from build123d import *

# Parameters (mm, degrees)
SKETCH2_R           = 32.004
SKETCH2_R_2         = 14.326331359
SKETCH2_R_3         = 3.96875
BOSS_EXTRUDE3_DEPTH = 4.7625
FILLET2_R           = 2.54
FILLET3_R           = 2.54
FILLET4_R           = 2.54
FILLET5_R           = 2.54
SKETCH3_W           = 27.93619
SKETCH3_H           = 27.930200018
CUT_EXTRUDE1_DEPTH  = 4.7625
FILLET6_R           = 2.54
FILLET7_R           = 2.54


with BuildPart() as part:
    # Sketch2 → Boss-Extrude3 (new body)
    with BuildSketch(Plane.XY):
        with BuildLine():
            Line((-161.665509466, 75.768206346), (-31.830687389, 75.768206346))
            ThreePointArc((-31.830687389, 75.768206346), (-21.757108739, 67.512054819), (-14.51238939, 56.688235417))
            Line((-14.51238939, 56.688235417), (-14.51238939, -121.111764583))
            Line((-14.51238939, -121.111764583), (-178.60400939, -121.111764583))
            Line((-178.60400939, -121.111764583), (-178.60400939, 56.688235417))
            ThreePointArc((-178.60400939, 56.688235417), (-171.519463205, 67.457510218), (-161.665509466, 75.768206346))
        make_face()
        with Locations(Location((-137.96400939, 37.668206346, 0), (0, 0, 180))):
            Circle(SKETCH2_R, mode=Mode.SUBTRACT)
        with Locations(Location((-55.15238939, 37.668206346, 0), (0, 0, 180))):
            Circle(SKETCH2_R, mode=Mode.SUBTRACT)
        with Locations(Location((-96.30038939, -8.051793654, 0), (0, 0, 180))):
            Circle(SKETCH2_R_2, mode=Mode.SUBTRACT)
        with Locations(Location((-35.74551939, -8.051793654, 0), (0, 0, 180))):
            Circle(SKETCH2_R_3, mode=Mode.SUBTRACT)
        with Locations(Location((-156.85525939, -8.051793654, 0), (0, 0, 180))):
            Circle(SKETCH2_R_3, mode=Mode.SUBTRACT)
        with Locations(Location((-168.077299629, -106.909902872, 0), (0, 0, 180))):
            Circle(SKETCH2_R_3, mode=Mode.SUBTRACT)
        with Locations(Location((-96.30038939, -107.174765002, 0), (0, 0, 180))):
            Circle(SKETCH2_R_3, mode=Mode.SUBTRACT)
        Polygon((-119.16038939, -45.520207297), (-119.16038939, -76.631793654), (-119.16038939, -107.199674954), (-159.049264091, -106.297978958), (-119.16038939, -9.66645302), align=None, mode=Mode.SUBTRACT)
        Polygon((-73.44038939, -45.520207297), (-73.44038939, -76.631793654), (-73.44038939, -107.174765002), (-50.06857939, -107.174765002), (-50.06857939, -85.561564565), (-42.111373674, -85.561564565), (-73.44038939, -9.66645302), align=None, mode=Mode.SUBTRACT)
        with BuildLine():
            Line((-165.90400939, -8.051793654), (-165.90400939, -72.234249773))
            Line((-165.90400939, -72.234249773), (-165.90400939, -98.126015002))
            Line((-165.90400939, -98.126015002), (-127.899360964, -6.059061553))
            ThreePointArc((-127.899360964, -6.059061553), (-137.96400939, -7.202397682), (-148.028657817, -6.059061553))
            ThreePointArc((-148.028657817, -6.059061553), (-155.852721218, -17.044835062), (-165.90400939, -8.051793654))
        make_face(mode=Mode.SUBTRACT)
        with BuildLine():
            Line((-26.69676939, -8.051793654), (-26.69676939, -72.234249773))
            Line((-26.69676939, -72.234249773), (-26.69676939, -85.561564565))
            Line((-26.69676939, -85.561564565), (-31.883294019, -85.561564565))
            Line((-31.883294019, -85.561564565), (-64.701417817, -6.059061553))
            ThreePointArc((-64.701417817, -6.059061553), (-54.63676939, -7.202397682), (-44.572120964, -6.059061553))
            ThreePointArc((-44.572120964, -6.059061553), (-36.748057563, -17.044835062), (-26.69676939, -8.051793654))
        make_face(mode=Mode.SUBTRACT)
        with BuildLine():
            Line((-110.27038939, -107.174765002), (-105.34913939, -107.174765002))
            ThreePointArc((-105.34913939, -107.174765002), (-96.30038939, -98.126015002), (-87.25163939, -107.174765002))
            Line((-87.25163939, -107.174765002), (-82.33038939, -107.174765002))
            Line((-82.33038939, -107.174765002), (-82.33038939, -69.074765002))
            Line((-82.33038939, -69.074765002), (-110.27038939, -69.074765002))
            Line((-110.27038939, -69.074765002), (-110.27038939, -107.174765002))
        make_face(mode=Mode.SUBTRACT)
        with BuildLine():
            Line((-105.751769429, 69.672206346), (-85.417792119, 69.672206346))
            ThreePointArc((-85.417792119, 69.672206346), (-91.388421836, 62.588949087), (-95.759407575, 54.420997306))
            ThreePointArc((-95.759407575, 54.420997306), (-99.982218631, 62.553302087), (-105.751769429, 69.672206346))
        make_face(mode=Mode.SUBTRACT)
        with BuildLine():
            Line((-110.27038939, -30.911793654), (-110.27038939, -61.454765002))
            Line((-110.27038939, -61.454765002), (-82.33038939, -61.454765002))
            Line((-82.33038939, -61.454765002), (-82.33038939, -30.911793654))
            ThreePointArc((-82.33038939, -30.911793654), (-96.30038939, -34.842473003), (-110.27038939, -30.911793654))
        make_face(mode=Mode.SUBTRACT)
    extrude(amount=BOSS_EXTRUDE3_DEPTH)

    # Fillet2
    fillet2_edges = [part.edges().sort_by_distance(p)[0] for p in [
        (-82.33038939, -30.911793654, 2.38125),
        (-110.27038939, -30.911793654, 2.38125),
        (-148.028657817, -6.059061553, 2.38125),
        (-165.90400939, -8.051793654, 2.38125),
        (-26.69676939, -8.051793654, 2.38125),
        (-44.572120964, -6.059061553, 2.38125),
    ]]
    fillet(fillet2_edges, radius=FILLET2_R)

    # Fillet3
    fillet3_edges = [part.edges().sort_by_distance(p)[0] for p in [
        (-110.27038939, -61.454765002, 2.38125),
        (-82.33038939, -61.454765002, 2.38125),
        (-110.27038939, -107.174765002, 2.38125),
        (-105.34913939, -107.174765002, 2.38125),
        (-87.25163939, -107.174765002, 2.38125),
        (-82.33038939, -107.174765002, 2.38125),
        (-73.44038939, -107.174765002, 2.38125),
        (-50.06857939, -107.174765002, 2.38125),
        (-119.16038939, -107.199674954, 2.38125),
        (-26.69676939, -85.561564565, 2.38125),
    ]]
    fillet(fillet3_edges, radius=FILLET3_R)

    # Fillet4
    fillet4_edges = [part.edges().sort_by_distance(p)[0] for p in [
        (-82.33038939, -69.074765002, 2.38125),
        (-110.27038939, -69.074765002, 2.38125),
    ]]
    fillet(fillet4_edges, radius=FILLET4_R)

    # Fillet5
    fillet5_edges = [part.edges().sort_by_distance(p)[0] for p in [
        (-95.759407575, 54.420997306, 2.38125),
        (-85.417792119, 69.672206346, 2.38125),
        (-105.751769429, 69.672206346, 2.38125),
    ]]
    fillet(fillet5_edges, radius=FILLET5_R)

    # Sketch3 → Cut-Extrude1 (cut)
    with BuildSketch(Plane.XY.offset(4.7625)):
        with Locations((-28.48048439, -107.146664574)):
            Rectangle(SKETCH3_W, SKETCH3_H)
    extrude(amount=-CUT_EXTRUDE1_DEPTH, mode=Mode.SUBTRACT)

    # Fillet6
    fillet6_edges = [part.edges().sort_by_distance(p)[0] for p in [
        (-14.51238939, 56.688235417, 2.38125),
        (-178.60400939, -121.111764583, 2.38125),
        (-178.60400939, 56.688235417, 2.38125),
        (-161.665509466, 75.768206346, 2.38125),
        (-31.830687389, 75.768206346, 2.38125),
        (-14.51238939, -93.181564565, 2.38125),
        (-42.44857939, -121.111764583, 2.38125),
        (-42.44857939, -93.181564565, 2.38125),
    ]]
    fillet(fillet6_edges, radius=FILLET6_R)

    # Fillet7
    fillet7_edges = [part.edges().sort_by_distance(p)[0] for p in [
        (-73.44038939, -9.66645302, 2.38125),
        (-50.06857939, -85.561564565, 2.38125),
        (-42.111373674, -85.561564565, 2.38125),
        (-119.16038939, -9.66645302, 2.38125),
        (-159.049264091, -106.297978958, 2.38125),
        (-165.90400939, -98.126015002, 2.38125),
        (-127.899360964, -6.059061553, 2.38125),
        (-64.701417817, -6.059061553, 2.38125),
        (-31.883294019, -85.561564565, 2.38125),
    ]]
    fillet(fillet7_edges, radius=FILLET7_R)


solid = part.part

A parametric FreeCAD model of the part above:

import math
import FreeCAD as App
import Part
import Sketcher
Q = App.Units.Quantity


def edges_at(feature, points):
    """Names of the edges that pass closest to the given points."""
    edges = feature.Shape.Edges
    near = lambda p: min(range(len(edges)), key=lambda i: edges[i].distToShape(Part.Vertex(*p))[0])
    return sorted({f"Edge{near(p) + 1}" for p in points})

doc = App.newDocument("Part")
params = doc.addObject("Spreadsheet::Sheet", "Params")
for row, (alias, value) in enumerate([
    ("sketch1_diameter", "2.52 in"),
    ("sketch1_height", "7 in"),
    ("sketch1_diameter2", "0.3125 in"),
    ("sketch1_width", "1.1 in"),
    ("sketch1_height2", "1.5 in"),
    ("pad1_length", "0.1875 in"),
    ("fillet_radius", "0.1 in"),
    ("fillet2_radius", "0.1 in"),
    ("fillet3_radius", "0.1 in"),
    ("fillet4_radius", "0.1 in"),
    ("pocket1_length", "0.1875 in"),
    ("fillet5_radius", "0.1 in"),
    ("fillet6_radius", "0.1 in"),
], start=1):
    params.set(f"A{row}", alias)
    params.set(f"B{row}", "=" + value)
    params.setAlias(f"B{row}", alias)

body = doc.addObject("PartDesign::Body", "Body")

# Sketch on XY plane
sketch1 = body.newObject("Sketcher::SketchObject", "Sketch")
sketch1.AttachmentSupport = (doc.getObject("XY_Plane"), [""])
sketch1.MapMode = "FlatFace"
sketch1.addGeometry([
    Part.LineSegment(App.Vector(-31.8, 75.8, 0), App.Vector(-161.7, 75.8, 0)),  # 0
    Part.ArcOfCircle(Part.Circle(App.Vector(-138, 37.7, 0), App.Vector(0, 0, 1), 44.9), math.radians(122), math.radians(155)),  # 1
    Part.LineSegment(App.Vector(-178.6, 56.7, 0), App.Vector(-178.6, -121.1, 0)),  # 2
    Part.LineSegment(App.Vector(-178.6, -121.1, 0), App.Vector(-14.5, -121.1, 0)),  # 3
    Part.LineSegment(App.Vector(-14.5, -121.1, 0), App.Vector(-14.5, 56.7, 0)),  # 4
    Part.ArcOfCircle(Part.Circle(App.Vector(-54.6, 37.7, 0), App.Vector(0, 0, 1), 44.4), math.radians(25), math.radians(59)),  # 5
    Part.Circle(App.Vector(-96.3, -107.2, 0), App.Vector(0, 0, 1), 4),  # 6
    Part.LineSegment(App.Vector(-110.3, -107.2, 0), App.Vector(-110.3, -69.1, 0)),  # 7
    Part.LineSegment(App.Vector(-110.3, -69.1, 0), App.Vector(-82.3, -69.1, 0)),  # 8
    Part.LineSegment(App.Vector(-82.3, -69.1, 0), App.Vector(-82.3, -107.2, 0)),  # 9
    Part.LineSegment(App.Vector(-82.3, -107.2, 0), App.Vector(-87.3, -107.2, 0)),  # 10
    Part.ArcOfCircle(Part.Circle(App.Vector(-96.3, -107.2, 0), App.Vector(0, 0, 1), 9), math.radians(0), math.radians(180)),  # 11
    Part.LineSegment(App.Vector(-105.3, -107.2, 0), App.Vector(-110.3, -107.2, 0)),  # 12
    Part.LineSegment(App.Vector(-73.4, -9.7, 0), App.Vector(-42.1, -85.6, 0)),  # 13
    Part.LineSegment(App.Vector(-42.1, -85.6, 0), App.Vector(-50.1, -85.6, 0)),  # 14
    Part.LineSegment(App.Vector(-50.1, -85.6, 0), App.Vector(-50.1, -107.2, 0)),  # 15
    Part.LineSegment(App.Vector(-50.1, -107.2, 0), App.Vector(-73.4, -107.2, 0)),  # 16
    Part.LineSegment(App.Vector(-73.4, -107.2, 0), App.Vector(-73.4, -9.7, 0)),  # 17
    Part.LineSegment(App.Vector(-26.7, -8.1, 0), App.Vector(-26.7, -85.6, 0)),  # 18
    Part.LineSegment(App.Vector(-26.7, -85.6, 0), App.Vector(-31.9, -85.6, 0)),  # 19
    Part.LineSegment(App.Vector(-31.9, -85.6, 0), App.Vector(-64.7, -6.1, 0)),  # 20
    Part.ArcOfCircle(Part.Circle(App.Vector(-54.6, 37.7, 0), App.Vector(0, 0, 1), 44.9), math.radians(-103), math.radians(-77)),  # 21
    Part.ArcOfCircle(Part.Circle(App.Vector(-35.7, -8.1, 0), App.Vector(0, 0, 1), 9), math.radians(167), math.radians(360)),  # 22
    Part.ArcOfCircle(Part.Circle(App.Vector(-96.3, -8.1, 0), App.Vector(0, 0, 1), 26.8), math.radians(-121), math.radians(-59)),  # 23
    Part.LineSegment(App.Vector(-82.3, -30.9, 0), App.Vector(-82.3, -61.5, 0)),  # 24
    Part.LineSegment(App.Vector(-82.3, -61.5, 0), App.Vector(-110.3, -61.5, 0)),  # 25
    Part.LineSegment(App.Vector(-110.3, -61.5, 0), App.Vector(-110.3, -30.9, 0)),  # 26
    Part.Circle(App.Vector(-168.1, -106.9, 0), App.Vector(0, 0, 1), 4),  # 27
    Part.LineSegment(App.Vector(-119.2, -107.2, 0), App.Vector(-159, -106.3, 0)),  # 28
    Part.LineSegment(App.Vector(-159, -106.3, 0), App.Vector(-119.2, -9.7, 0)),  # 29
    Part.LineSegment(App.Vector(-119.2, -9.7, 0), App.Vector(-119.2, -107.2, 0)),  # 30
    Part.ArcOfCircle(Part.Circle(App.Vector(-156.9, -8.1, 0), App.Vector(0, 0, 1), 9), math.radians(180), math.radians(373)),  # 31
    Part.ArcOfCircle(Part.Circle(App.Vector(-138, 37.7, 0), App.Vector(0, 0, 1), 44.9), math.radians(-103), math.radians(-77)),  # 32
    Part.LineSegment(App.Vector(-127.9, -6.1, 0), App.Vector(-165.9, -98.1, 0)),  # 33
    Part.LineSegment(App.Vector(-165.9, -98.1, 0), App.Vector(-165.9, -8.1, 0)),  # 34
    Part.Circle(App.Vector(-35.7, -8.1, 0), App.Vector(0, 0, 1), 4),  # 35
    Part.Circle(App.Vector(-96.3, -8.1, 0), App.Vector(0, 0, 1), 14.3),  # 36
    Part.Circle(App.Vector(-55.2, 37.7, 0), App.Vector(0, 0, 1), 32),  # 37
    Part.LineSegment(App.Vector(-105.8, 69.7, 0), App.Vector(-85.4, 69.7, 0)),  # 38
    Part.ArcOfCircle(Part.Circle(App.Vector(-54.6, 37.7, 0), App.Vector(0, 0, 1), 44.4), math.radians(134), math.radians(158)),  # 39
    Part.ArcOfCircle(Part.Circle(App.Vector(-138, 37.7, 0), App.Vector(0, 0, 1), 45.4), math.radians(22), math.radians(45)),  # 40
    Part.Circle(App.Vector(-156.9, -8.1, 0), App.Vector(0, 0, 1), 4),  # 41
    Part.Circle(App.Vector(-138, 37.7, 0), App.Vector(0, 0, 1), 32),  # 42
], False)
sketch1.addConstraint([
    Sketcher.Constraint("Coincident", 0, 2, 1, 1),
    Sketcher.Constraint("Coincident", 1, 2, 2, 1),
    Sketcher.Constraint("Coincident", 2, 2, 3, 1),
    Sketcher.Constraint("Coincident", 3, 2, 4, 1),
    Sketcher.Constraint("Coincident", 4, 2, 5, 1),
    Sketcher.Constraint("Coincident", 5, 2, 0, 1),
    Sketcher.Constraint("Coincident", 7, 2, 8, 1),
    Sketcher.Constraint("Coincident", 8, 2, 9, 1),
    Sketcher.Constraint("Coincident", 9, 2, 10, 1),
    Sketcher.Constraint("Coincident", 10, 2, 11, 1),
    Sketcher.Constraint("Coincident", 11, 2, 12, 1),
    Sketcher.Constraint("Coincident", 12, 2, 7, 1),
    Sketcher.Constraint("Coincident", 13, 2, 14, 1),
    Sketcher.Constraint("Coincident", 14, 2, 15, 1),
    Sketcher.Constraint("Coincident", 15, 2, 16, 1),
    Sketcher.Constraint("Coincident", 16, 2, 17, 1),
    Sketcher.Constraint("Coincident", 17, 2, 13, 1),
    Sketcher.Constraint("Coincident", 18, 2, 19, 1),
    Sketcher.Constraint("Coincident", 19, 2, 20, 1),
    Sketcher.Constraint("Coincident", 20, 2, 21, 1),
    Sketcher.Constraint("Coincident", 21, 2, 22, 1),
    Sketcher.Constraint("Tangent", 22, 2, 18, 1),
    Sketcher.Constraint("Coincident", 23, 2, 24, 1),
    Sketcher.Constraint("Coincident", 24, 2, 25, 1),
    Sketcher.Constraint("Coincident", 25, 2, 26, 1),
    Sketcher.Constraint("Coincident", 26, 2, 23, 1),
    Sketcher.Constraint("Coincident", 28, 2, 29, 1),
    Sketcher.Constraint("Coincident", 29, 2, 30, 1),
    Sketcher.Constraint("Coincident", 30, 2, 28, 1),
    Sketcher.Constraint("Coincident", 31, 2, 32, 1),
    Sketcher.Constraint("Coincident", 32, 2, 33, 1),
    Sketcher.Constraint("Coincident", 33, 2, 34, 1),
    Sketcher.Constraint("Tangent", 34, 2, 31, 1),
    Sketcher.Constraint("Coincident", 38, 2, 39, 1),
    Sketcher.Constraint("Coincident", 39, 2, 40, 1),
    Sketcher.Constraint("Coincident", 40, 2, 38, 1),
    Sketcher.Constraint("Horizontal", 0),
    Sketcher.Constraint("Vertical", 2),
    Sketcher.Constraint("Horizontal", 3),
    Sketcher.Constraint("Vertical", 4),
    Sketcher.Constraint("Vertical", 7),
    Sketcher.Constraint("Horizontal", 8),
    Sketcher.Constraint("Vertical", 9),
    Sketcher.Constraint("Horizontal", 10),
    Sketcher.Constraint("Horizontal", 12),
    Sketcher.Constraint("Horizontal", 14),
    Sketcher.Constraint("Vertical", 15),
    Sketcher.Constraint("Horizontal", 16),
    Sketcher.Constraint("Vertical", 17),
    Sketcher.Constraint("Vertical", 18),
    Sketcher.Constraint("Horizontal", 19),
    Sketcher.Constraint("Vertical", 24),
    Sketcher.Constraint("Horizontal", 25),
    Sketcher.Constraint("Vertical", 26),
    Sketcher.Constraint("Vertical", 30),
    Sketcher.Constraint("Vertical", 34),
    Sketcher.Constraint("Horizontal", 38),
    Sketcher.Constraint("Coincident", 11, 3, 6, 3),
    Sketcher.Constraint("Coincident", 21, 3, 5, 3),
    Sketcher.Constraint("Coincident", 32, 3, 1, 3),
    Sketcher.Constraint("Coincident", 35, 3, 22, 3),
    Sketcher.Constraint("Coincident", 36, 3, 23, 3),
    Sketcher.Constraint("Coincident", 39, 3, 5, 3),
    Sketcher.Constraint("Coincident", 40, 3, 1, 3),
    Sketcher.Constraint("Coincident", 41, 3, 31, 3),
    Sketcher.Constraint("Coincident", 42, 3, 1, 3),
    Sketcher.Constraint("Equal", 1, 21),
    Sketcher.Constraint("Equal", 11, 22),
    Sketcher.Constraint("Equal", 6, 27),
    Sketcher.Constraint("Equal", 22, 31),
    Sketcher.Constraint("Equal", 21, 32),
    Sketcher.Constraint("Equal", 27, 35),
    Sketcher.Constraint("Equal", 5, 39),
    Sketcher.Constraint("Equal", 35, 41),
    Sketcher.Constraint("Equal", 37, 42),
    Sketcher.Constraint("Parallel", 13, 20),
    Sketcher.Constraint("Parallel", 29, 33),
    Sketcher.Constraint("Horizontal", 1, 3, 5, 3),
    Sketcher.Constraint("Horizontal", 22, 3, 23, 3),
    Sketcher.Constraint("Horizontal", 23, 3, 31, 3),
    Sketcher.Constraint("Horizontal", 32, 3, 37, 3),
    Sketcher.Constraint("Horizontal", 1, 2, 4, 2),
    Sketcher.Constraint("Horizontal", 11, 3, 9, 2),
    Sketcher.Constraint("Horizontal", 10, 2, 11, 2),
    Sketcher.Constraint("Horizontal", 12, 2, 15, 2),
    Sketcher.Constraint("Horizontal", 14, 2, 18, 2),
    Sketcher.Constraint("Horizontal", 20, 2, 21, 2),
    Sketcher.Constraint("Horizontal", 23, 2, 26, 2),
    Sketcher.Constraint("Horizontal", 17, 2, 29, 2),
    Sketcher.Constraint("Horizontal", 21, 2, 31, 2),
    Sketcher.Constraint("Horizontal", 31, 2, 32, 2),
    Sketcher.Constraint("Vertical", 11, 3, 23, 3),
    Sketcher.Constraint("Vertical", 9, 2, 23, 2),
    Sketcher.Constraint("Vertical", 12, 2, 25, 2),
    Sketcher.Constraint("Diameter", 37, Q("2.52 in")),
    Sketcher.Constraint("DistanceY", 2, 2, 2, 1, Q("7 in")),
    Sketcher.Constraint("Diameter", 6, Q("0.3125 in")),
    Sketcher.Constraint("DistanceX", 8, 1, 8, 2, Q("1.1 in")),
    Sketcher.Constraint("DistanceY", 7, 1, 7, 2, Q("1.5 in")),
    Sketcher.Constraint("DistanceY", 22, 3, 5, 3, Q("1.8 in")),
    Sketcher.Constraint("DistanceY", 1, 3, 0, 2, Q("1.5 in")),
    Sketcher.Constraint("DistanceX", 1, 2, 1, 3, Q("1.6 in")),
    Sketcher.Constraint("DistanceX", 37, 3, 4, 2, Q("1.6 in")),
    Sketcher.Constraint("DistanceX", 6, 3, 16, 2, Q("0.9 in")),
    Sketcher.Constraint("DistanceY", 23, 2, 36, 3, Q("0.9 in")),
    Sketcher.Constraint("DistanceY", 8, 2, 24, 2, Q("0.3 in")),
    Sketcher.Constraint("DistanceX", 29, 2, 36, 3, Q("0.9 in")),
    Sketcher.Constraint("DistanceX", 2, 2, 33, 2, Q("0.5 in")),
    Sketcher.Constraint("DistanceX", 23, 3, 37, 3, Q("1.62 in")),
    Sketcher.Constraint("DistanceY", 37, 3, 38, 2, Q("1.26 in")),
    Sketcher.Constraint("DistanceX", 3, 1, 3, 2, Q("6.4603 in")),
    Sketcher.Constraint("Radius", 11, 9.04875),
    Sketcher.Constraint("Diameter", 36, 28.652663),
    Sketcher.Constraint("DistanceY", 15, 2, 15, 1, 21.6132),
    Sketcher.Constraint("DistanceX", 20, 2, -1, 1, Q("2.5472999 in")),
    Sketcher.Constraint("DistanceX", 31, 2, -1, 1, Q("5.8278999 in")),
    Sketcher.Constraint("Radius", 1, 44.870604),
    Sketcher.Constraint("Radius", 40, 45.407977),
    Sketcher.Constraint("DistanceX", 10, 2, 14, 2, Q("1.4639 in")),
    Sketcher.Constraint("DistanceY", 17, 1, 17, 2, 97.508312),
    Sketcher.Constraint("DistanceY", 18, 2, 18, 1, 77.509771),
    Sketcher.Constraint("DistanceY", 30, 2, 30, 1, 97.533222),
    Sketcher.Constraint("DistanceY", 34, 1, 34, 2, 90.074221),
    Sketcher.Constraint("DistanceX", 27, 3, -1, 1, 168.0773),
    Sketcher.Constraint("Distance", 20, 86.009751),
    Sketcher.Constraint("DistanceY", 20, 2, -1, 1, 6.059062),
    Sketcher.Constraint("DistanceY", 28, 2, -1, 1, 106.297979),
    Sketcher.Constraint("DistanceY", 27, 3, 23, 3, 98.858109),
])
sketch1.setExpression("Constraints[94]", "Params.sketch1_diameter")
sketch1.setExpression("Constraints[95]", "Params.sketch1_height")
sketch1.setExpression("Constraints[96]", "Params.sketch1_diameter2")
sketch1.setExpression("Constraints[97]", "Params.sketch1_width")
sketch1.setExpression("Constraints[98]", "Params.sketch1_height2")
pad1 = body.newObject("PartDesign::Pad", "Pad")
pad1.Profile = sketch1
pad1.setExpression("Length", "Params.pad1_length")
doc.recompute()

fillet = body.newObject("PartDesign::Fillet", "Fillet")
fillet.Base = (pad1, edges_at(pad1, [
    (-82.33, -30.912, 2.381),
    (-110.27, -30.912, 2.381),
    (-148.029, -6.059, 2.381),
    (-165.904, -8.052, 2.381),
    (-26.697, -8.052, 2.381),
    (-44.572, -6.059, 2.381),
]))
fillet.setExpression("Radius", "Params.fillet_radius")
doc.recompute()

fillet2 = body.newObject("PartDesign::Fillet", "Fillet001")
fillet2.Base = (fillet, edges_at(fillet, [
    (-110.27, -61.455, 2.381),
    (-82.33, -61.455, 2.381),
    (-110.27, -107.175, 2.381),
    (-105.349, -107.175, 2.381),
    (-87.252, -107.175, 2.381),
    (-82.33, -107.175, 2.381),
    (-73.44, -107.175, 2.381),
    (-50.069, -107.175, 2.381),
    (-119.16, -107.2, 2.381),
    (-26.697, -85.562, 2.381),
]))
fillet2.setExpression("Radius", "Params.fillet2_radius")
doc.recompute()

fillet3 = body.newObject("PartDesign::Fillet", "Fillet002")
fillet3.Base = (fillet2, edges_at(fillet2, [(-82.33, -69.075, 2.381), (-110.27, -69.075, 2.381)]))
fillet3.setExpression("Radius", "Params.fillet3_radius")
doc.recompute()

fillet4 = body.newObject("PartDesign::Fillet", "Fillet003")
fillet4.Base = (fillet3, edges_at(fillet3, [(-95.759, 54.421, 2.381), (-85.418, 69.672, 2.381), (-105.752, 69.672, 2.381)]))
fillet4.setExpression("Radius", "Params.fillet4_radius")

# Sketch on XY plane
sketch2 = body.newObject("Sketcher::SketchObject", "Sketch001")
sketch2.AttachmentSupport = (doc.getObject("XY_Plane"), [""])
sketch2.MapMode = "FlatFace"
sketch2.AttachmentOffset = App.Placement(App.Vector(0, 0, 0.1875 * 25.4), App.Rotation())
sketch2.addGeometry([
    Part.LineSegment(App.Vector(-42, -93, 0), App.Vector(-42, -121, 0)),
    Part.LineSegment(App.Vector(-42, -121, 0), App.Vector(-15, -121, 0)),
    Part.LineSegment(App.Vector(-15, -121, 0), App.Vector(-15, -93, 0)),
    Part.LineSegment(App.Vector(-15, -93, 0), App.Vector(-42, -93, 0)),
], False)
sketch2.addConstraint([
    Sketcher.Constraint("Coincident", 0, 2, 1, 1),
    Sketcher.Constraint("Coincident", 1, 2, 2, 1),
    Sketcher.Constraint("Coincident", 2, 2, 3, 1),
    Sketcher.Constraint("Coincident", 3, 2, 0, 1),
    Sketcher.Constraint("Vertical", 0),
    Sketcher.Constraint("Horizontal", 1),
    Sketcher.Constraint("Vertical", 2),
    Sketcher.Constraint("Horizontal", 3),
    Sketcher.Constraint("DistanceY", 0, 2, 0, 1, 27.9302),
    Sketcher.Constraint("DistanceX", 1, 1, 1, 2, 27.93619),
    Sketcher.Constraint("DistanceX", 0, 2, -1, 1, 42.448579),
    Sketcher.Constraint("DistanceY", 0, 2, -1, 1, 121.111765),
])
pocket1 = body.newObject("PartDesign::Pocket", "Pocket")
pocket1.Profile = sketch2
pocket1.setExpression("Length", "Params.pocket1_length")
doc.recompute()

fillet5 = body.newObject("PartDesign::Fillet", "Fillet004")
fillet5.Base = (pocket1, edges_at(pocket1, [
    (-14.512, 56.688, 2.381),
    (-178.604, -121.112, 2.381),
    (-178.604, 56.688, 2.381),
    (-161.666, 75.768, 2.381),
    (-31.831, 75.768, 2.381),
    (-14.512, -93.182, 2.381),
    (-42.449, -121.112, 2.381),
    (-42.449, -93.182, 2.381),
]))
fillet5.setExpression("Radius", "Params.fillet5_radius")
doc.recompute()

fillet6 = body.newObject("PartDesign::Fillet", "Fillet005")
fillet6.Base = (fillet5, edges_at(fillet5, [
    (-73.44, -9.666, 2.381),
    (-50.069, -85.562, 2.381),
    (-42.111, -85.562, 2.381),
    (-119.16, -9.666, 2.381),
    (-159.049, -106.298, 2.381),
    (-165.904, -98.126, 2.381),
    (-127.899, -6.059, 2.381),
    (-64.701, -6.059, 2.381),
    (-31.883, -85.562, 2.381),
]))
fillet6.setExpression("Radius", "Params.fillet6_radius")

doc.recompute()
